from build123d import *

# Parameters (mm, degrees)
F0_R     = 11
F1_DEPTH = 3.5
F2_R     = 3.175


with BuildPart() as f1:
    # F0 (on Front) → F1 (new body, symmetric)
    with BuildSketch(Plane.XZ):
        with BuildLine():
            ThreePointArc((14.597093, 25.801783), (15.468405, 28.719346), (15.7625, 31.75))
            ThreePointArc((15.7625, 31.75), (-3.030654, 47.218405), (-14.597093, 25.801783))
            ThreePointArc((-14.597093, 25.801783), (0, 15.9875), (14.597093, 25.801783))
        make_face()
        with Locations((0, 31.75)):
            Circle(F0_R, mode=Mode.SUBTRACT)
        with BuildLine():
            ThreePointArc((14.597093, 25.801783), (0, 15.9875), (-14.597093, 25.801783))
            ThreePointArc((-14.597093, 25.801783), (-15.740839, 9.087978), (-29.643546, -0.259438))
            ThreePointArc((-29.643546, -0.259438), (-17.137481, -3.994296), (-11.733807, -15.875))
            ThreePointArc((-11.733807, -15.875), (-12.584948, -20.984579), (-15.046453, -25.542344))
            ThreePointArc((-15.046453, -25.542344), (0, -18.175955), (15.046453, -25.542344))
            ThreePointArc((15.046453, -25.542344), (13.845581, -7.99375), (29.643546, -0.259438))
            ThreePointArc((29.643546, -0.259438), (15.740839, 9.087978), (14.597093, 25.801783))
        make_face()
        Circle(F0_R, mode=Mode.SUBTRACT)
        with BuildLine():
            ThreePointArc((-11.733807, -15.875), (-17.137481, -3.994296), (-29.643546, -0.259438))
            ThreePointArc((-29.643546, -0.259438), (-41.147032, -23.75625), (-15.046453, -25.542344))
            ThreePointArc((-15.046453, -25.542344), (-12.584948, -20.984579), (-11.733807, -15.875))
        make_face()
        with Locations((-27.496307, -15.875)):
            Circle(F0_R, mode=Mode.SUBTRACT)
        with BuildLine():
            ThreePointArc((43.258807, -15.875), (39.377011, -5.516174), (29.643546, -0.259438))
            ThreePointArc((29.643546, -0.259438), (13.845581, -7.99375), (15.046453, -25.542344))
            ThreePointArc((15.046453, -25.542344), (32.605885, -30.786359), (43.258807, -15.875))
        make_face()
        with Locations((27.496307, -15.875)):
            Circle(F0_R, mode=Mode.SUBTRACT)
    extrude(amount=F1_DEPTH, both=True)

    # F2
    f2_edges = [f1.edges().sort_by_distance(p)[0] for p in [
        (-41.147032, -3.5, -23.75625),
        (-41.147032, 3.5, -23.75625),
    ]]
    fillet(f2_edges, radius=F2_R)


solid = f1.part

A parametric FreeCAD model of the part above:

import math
import FreeCAD as App
import Part
import Sketcher
from FreeCAD import Vector
Q = App.Units.Quantity


def edges_at(feature, points):
    """Names of the edges that pass closest to the given points."""
    edges = feature.Shape.Edges
    near = lambda p: min(range(len(edges)), key=lambda i: edges[i].distToShape(Part.Vertex(*p))[0])
    return sorted({f"Edge{near(p) + 1}" for p in points})

doc = App.newDocument("Part")
body = doc.addObject("PartDesign::Body", "Body")

# Sketch on XZ plane
sketch1 = doc.addObject("Sketcher::SketchObject", "Sketch")
body.addObject(sketch1)
sketch1.AttachmentSupport = (doc.XZ_Plane, [""])
sketch1.MapMode = "FlatFace"
sketch1.addGeometry(Part.ArcOfCircle(Part.Circle(Vector(0, 32, 0), Vector(0, 0, 1), 16), math.radians(-22), math.radians(0)), False)
sketch1.addGeometry(Part.ArcOfCircle(Part.Circle(Vector(0, 32, 0), Vector(0, 0, 1), 16), math.radians(0), math.radians(202)), False)
sketch1.addGeometry(Part.ArcOfCircle(Part.Circle(Vector(-32, 19, 0), Vector(0, 0, 1), 19), math.radians(-82), math.radians(22)), False)
sketch1.addGeometry(Part.ArcOfCircle(Part.Circle(Vector(-27, -16, 0), Vector(0, 0, 1), 16), math.radians(98), math.radians(322)), False)
sketch1.addGeometry(Part.ArcOfCircle(Part.Circle(Vector(0, -37, 0), Vector(0, 0, 1), 19), math.radians(38), math.radians(142)), False)
sketch1.addGeometry(Part.ArcOfCircle(Part.Circle(Vector(27, -16, 0), Vector(0, 0, 1), 16), math.radians(-142), math.radians(0)), False)
sketch1.addGeometry(Part.ArcOfCircle(Part.Circle(Vector(27, -16, 0), Vector(0, 0, 1), 16), math.radians(0), math.radians(82)), False)
sketch1.addGeometry(Part.ArcOfCircle(Part.Circle(Vector(32, 19, 0), Vector(0, 0, 1), 19), math.radians(158), math.radians(262)), False)
sketch1.addGeometry(Part.Circle(Vector(-27, -16, 0), Vector(0, 0, 1), 11), False)
sketch1.addGeometry(Part.Circle(Vector(27, -16, 0), Vector(0, 0, 1), 11), False)
sketch1.addGeometry(Part.Circle(Vector(0, 0, 0), Vector(0, 0, 1), 11), False)
sketch1.addGeometry(Part.Circle(Vector(0, 32, 0), Vector(0, 0, 1), 11), False)
sketch1.addConstraint(Sketcher.Constraint("Tangent", 0, 2, 1, 1))
sketch1.addConstraint(Sketcher.Constraint("Tangent", 1, 2, 2, 2))
sketch1.addConstraint(Sketcher.Constraint("Tangent", 2, 1, 3, 1))
sketch1.addConstraint(Sketcher.Constraint("Tangent", 3, 2, 4, 2))
sketch1.addConstraint(Sketcher.Constraint("Tangent", 4, 1, 5, 1))
sketch1.addConstraint(Sketcher.Constraint("Tangent", 5, 2, 6, 1))
sketch1.addConstraint(Sketcher.Constraint("Tangent", 6, 2, 7, 2))
sketch1.addConstraint(Sketcher.Constraint("Tangent", 7, 1, 0, 1))
sketch1.addConstraint(Sketcher.Constraint("Coincident", 10, 3, -1, 1))
sketch1.addConstraint(Sketcher.Constraint("Coincident", 8, 3, 3, 3))
sketch1.addConstraint(Sketcher.Constraint("Coincident", 9, 3, 5, 3))
sketch1.addConstraint(Sketcher.Constraint("Coincident", 11, 3, 1, 3))
sketch1.addConstraint(Sketcher.Constraint("Equal", 1, 3))
sketch1.addConstraint(Sketcher.Constraint("Equal", 2, 4))
sketch1.addConstraint(Sketcher.Constraint("Equal", 3, 5))
sketch1.addConstraint(Sketcher.Constraint("Equal", 5, 6))
sketch1.addConstraint(Sketcher.Constraint("Equal", 4, 7))
sketch1.addConstraint(Sketcher.Constraint("Equal", 8, 9))
sketch1.addConstraint(Sketcher.Constraint("Equal", 9, 10))
sketch1.addConstraint(Sketcher.Constraint("Equal", 10, 11))
sketch1.addConstraint(Sketcher.Constraint("Symmetric", 3, 3, 5, 3, -2))
sketch1.addConstraint(Sketcher.Constraint("Symmetric", 1, 2, 7, 1, -2))
sketch1.addConstraint(Sketcher.Constraint("Horizontal", 11, 3, 0, 2))
sketch1.addConstraint(Sketcher.Constraint("Horizontal", 9, 3, 5, 2))
sketch1.addConstraint(Sketcher.Constraint("Radius", 2, Q("0.75 in")))
sketch1.addConstraint(Sketcher.Constraint("Diameter", 8, 22.0))
sketch1.addConstraint(Sketcher.Constraint("DistanceY", -1, 1, 0, 3, Q("1.2499999 in")))
sketch1.addConstraint(Sketcher.Constraint("Radius", 1, 15.7625))
sketch1.addConstraint(Sketcher.Constraint("DistanceY", 3, 3, -1, 1, Q("0.625 in")))
sketch1.addConstraint(Sketcher.Constraint("DistanceY", 2, 1, -1, 1, 0.259438))
pad1 = doc.addObject("PartDesign::Pad", "Pad")
body.addObject(pad1)
pad1.Profile = sketch1
pad1.Length = 7
pad1.Midplane = True
doc.recompute()

fillet = doc.addObject("PartDesign::Fillet", "Fillet")
body.addObject(fillet)
fillet.Base = (pad1, edges_at(pad1, [(-41.147, -3.5, -23.756), (-41.147, 3.5, -23.756)]))
fillet.Radius = Q("0.125 in")

doc.recompute()
